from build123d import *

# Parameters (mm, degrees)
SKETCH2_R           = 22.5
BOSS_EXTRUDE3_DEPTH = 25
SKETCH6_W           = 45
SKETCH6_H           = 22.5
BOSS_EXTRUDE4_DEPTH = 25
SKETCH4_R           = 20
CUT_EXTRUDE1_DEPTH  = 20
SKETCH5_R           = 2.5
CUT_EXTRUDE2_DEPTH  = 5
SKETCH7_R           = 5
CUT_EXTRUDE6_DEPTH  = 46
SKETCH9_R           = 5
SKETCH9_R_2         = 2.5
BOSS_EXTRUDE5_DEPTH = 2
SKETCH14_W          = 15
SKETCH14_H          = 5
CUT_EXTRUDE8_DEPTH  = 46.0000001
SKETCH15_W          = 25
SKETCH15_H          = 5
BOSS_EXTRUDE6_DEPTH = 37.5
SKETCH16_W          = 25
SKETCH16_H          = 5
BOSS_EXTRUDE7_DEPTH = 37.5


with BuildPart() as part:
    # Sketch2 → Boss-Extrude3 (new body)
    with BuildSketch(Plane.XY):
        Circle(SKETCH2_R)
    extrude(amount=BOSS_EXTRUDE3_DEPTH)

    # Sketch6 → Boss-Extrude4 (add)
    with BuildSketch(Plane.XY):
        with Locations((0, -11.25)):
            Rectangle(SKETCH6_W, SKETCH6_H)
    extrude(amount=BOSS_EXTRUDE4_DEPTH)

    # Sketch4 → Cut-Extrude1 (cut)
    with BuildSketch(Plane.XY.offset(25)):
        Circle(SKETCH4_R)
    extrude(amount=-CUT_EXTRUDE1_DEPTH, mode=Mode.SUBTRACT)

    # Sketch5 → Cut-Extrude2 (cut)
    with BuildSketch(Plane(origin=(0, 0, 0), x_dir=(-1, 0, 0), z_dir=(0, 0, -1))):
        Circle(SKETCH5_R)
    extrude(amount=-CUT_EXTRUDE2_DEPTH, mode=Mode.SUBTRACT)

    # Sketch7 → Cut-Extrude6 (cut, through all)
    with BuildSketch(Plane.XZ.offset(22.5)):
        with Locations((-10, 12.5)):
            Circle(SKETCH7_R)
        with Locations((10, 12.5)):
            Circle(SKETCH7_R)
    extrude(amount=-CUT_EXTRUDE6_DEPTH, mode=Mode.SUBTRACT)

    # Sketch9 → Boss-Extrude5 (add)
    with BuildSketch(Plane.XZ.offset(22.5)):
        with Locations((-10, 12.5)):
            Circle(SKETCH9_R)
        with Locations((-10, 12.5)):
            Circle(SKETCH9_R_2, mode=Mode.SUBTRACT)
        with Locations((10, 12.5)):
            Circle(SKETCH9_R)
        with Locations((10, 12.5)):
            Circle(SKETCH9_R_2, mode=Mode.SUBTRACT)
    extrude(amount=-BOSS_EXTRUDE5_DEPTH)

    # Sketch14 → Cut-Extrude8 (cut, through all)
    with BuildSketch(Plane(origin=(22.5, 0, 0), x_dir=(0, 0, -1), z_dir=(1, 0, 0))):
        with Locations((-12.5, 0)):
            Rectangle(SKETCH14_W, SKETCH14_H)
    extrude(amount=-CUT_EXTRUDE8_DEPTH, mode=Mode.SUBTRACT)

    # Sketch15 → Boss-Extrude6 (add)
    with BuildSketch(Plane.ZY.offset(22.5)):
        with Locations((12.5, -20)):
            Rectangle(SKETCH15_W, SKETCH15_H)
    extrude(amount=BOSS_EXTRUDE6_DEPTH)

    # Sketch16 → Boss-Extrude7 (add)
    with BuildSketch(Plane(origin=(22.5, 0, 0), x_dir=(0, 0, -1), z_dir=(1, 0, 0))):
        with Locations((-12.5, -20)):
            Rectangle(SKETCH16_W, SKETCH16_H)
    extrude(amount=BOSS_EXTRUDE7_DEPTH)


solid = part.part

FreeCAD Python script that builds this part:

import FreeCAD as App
import Part
import Sketcher
from FreeCAD import Vector
Q = App.Units.Quantity

doc = App.newDocument("Part")
body = doc.addObject("PartDesign::Body", "Body")

# Sketch on XY plane
sketch1 = body.newObject("Sketcher::SketchObject", "Sketch")
sketch1.AttachmentSupport = (doc.getObject("XY_Plane"), [""])
sketch1.MapMode = "FlatFace"
sketch1.addGeometry(Part.Circle(Vector(0, 0, 0), Vector(0, 0, 1), 22), False)
sketch1.addConstraint(Sketcher.Constraint("Coincident", 0, 3, -1, 1))
sketch1.addConstraint(Sketcher.Constraint("Diameter", 0, Q("45 mm")))
pad1 = body.newObject("PartDesign::Pad", "Pad")
pad1.Profile = sketch1
pad1.Length = 25

# Sketch on XY plane
sketch2 = body.newObject("Sketcher::SketchObject", "Sketch001")
sketch2.AttachmentSupport = (doc.getObject("XY_Plane"), [""])
sketch2.MapMode = "FlatFace"
sketch2.addGeometry(Part.LineSegment(Vector(-22, 0, 0), Vector(-22, -22, 0)), False)
sketch2.addGeometry(Part.LineSegment(Vector(-22, -22, 0), Vector(22, -22, 0)), False)
sketch2.addGeometry(Part.LineSegment(Vector(22, -22, 0), Vector(22, 0, 0)), False)
sketch2.addGeometry(Part.LineSegment(Vector(22, 0, 0), Vector(-22, 0, 0)), False)
sketch2.addConstraint(Sketcher.Constraint("Coincident", 0, 2, 1, 1))
sketch2.addConstraint(Sketcher.Constraint("Coincident", 1, 2, 2, 1))
sketch2.addConstraint(Sketcher.Constraint("Coincident", 2, 2, 3, 1))
sketch2.addConstraint(Sketcher.Constraint("Coincident", 3, 2, 0, 1))
sketch2.addConstraint(Sketcher.Constraint("Vertical", 0))
sketch2.addConstraint(Sketcher.Constraint("Horizontal", 1))
sketch2.addConstraint(Sketcher.Constraint("Vertical", 2))
sketch2.addConstraint(Sketcher.Constraint("Horizontal", 3))
sketch2.addConstraint(Sketcher.Constraint("Symmetric", 2, 2, 3, 2, -1, 1))
sketch2.addConstraint(Sketcher.Constraint("DistanceX", 1, 1, 1, 2, Q("45 mm")))
sketch2.addConstraint(Sketcher.Constraint("DistanceY", 0, 2, 0, 1, Q("22.5 mm")))
pad2 = body.newObject("PartDesign::Pad", "Pad001")
pad2.Profile = sketch2
pad2.Length = 25

# Sketch on XY plane
sketch3 = body.newObject("Sketcher::SketchObject", "Sketch002")
sketch3.AttachmentSupport = (doc.getObject("XY_Plane"), [""])
sketch3.MapMode = "FlatFace"
sketch3.AttachmentOffset = App.Placement(Vector(0, 0, 25), App.Rotation())
sketch3.addGeometry(Part.Circle(Vector(0, 0, 0), Vector(0, 0, 1), 20), False)
sketch3.addConstraint(Sketcher.Constraint("Coincident", 0, 3, -1, 1))
sketch3.addConstraint(Sketcher.Constraint("Diameter", 0, Q("40 mm")))
pocket1 = body.newObject("PartDesign::Pocket", "Pocket")
pocket1.Profile = sketch3
pocket1.Length = 20

# Sketch on XY plane
sketch4 = body.newObject("Sketcher::SketchObject", "Sketch003")
sketch4.AttachmentSupport = (doc.getObject("XY_Plane"), [""])
sketch4.MapMode = "FlatFace"
sketch4.addGeometry(Part.Circle(Vector(0, 0, 0), Vector(0, 0, 1), 2.5), False)
sketch4.addConstraint(Sketcher.Constraint("Coincident", 0, 3, -1, 1))
sketch4.addConstraint(Sketcher.Constraint("Diameter", 0, Q("5 mm")))
pocket2 = body.newObject("PartDesign::Pocket", "Pocket001")
pocket2.Profile = sketch4
pocket2.Length = 5
pocket2.Reversed = True

# Sketch on XZ plane
sketch5 = body.newObject("Sketcher::SketchObject", "Sketch004")
sketch5.AttachmentSupport = (doc.getObject("XZ_Plane"), [""])
sketch5.MapMode = "FlatFace"
sketch5.AttachmentOffset = App.Placement(Vector(0, 0, 22.5), App.Rotation())
sketch5.addGeometry(Part.Circle(Vector(-10, 12, 0), Vector(0, 0, 1), 5), False)
sketch5.addGeometry(Part.Circle(Vector(10, 12, 0), Vector(0, 0, 1), 5), False)
sketch5.addConstraint(Sketcher.Constraint("Equal", 0, 1))
sketch5.addConstraint(Sketcher.Constraint("Symmetric", 0, 3, 1, 3, -2))
sketch5.addConstraint(Sketcher.Constraint("Diameter", 0, Q("10 mm")))
sketch5.addConstraint(Sketcher.Constraint("DistanceX", 0, 3, -1, 1, Q("10 mm")))
sketch5.addConstraint(Sketcher.Constraint("DistanceY", -1, 1, 0, 3, Q("12.5 mm")))
pocket3 = body.newObject("PartDesign::Pocket", "Pocket002")
pocket3.Profile = sketch5
pocket3.Type = "ThroughAll"

# Sketch on XZ plane
sketch6 = body.newObject("Sketcher::SketchObject", "Sketch005")
sketch6.AttachmentSupport = (doc.getObject("XZ_Plane"), [""])
sketch6.MapMode = "FlatFace"
sketch6.AttachmentOffset = App.Placement(Vector(0, 0, 22.5), App.Rotation())
sketch6.addGeometry(Part.Circle(Vector(-10, 12.5, 0), Vector(0, 0, 1), 5), False)
sketch6.addGeometry(Part.Circle(Vector(-10, 12.5, 0), Vector(0, 0, 1), 2.5), False)
sketch6.addGeometry(Part.Circle(Vector(10, 12.5, 0), Vector(0, 0, 1), 5), False)
sketch6.addGeometry(Part.Circle(Vector(10, 12.5, 0), Vector(0, 0, 1), 2.5), False)
sketch6.addConstraint(Sketcher.Constraint("Coincident", 1, 3, 0, 3))
sketch6.addConstraint(Sketcher.Constraint("Coincident", 3, 3, 2, 3))
sketch6.addConstraint(Sketcher.Constraint("Equal", 0, 2))
sketch6.addConstraint(Sketcher.Constraint("Equal", 1, 3))
sketch6.addConstraint(Sketcher.Constraint("Symmetric", 0, 3, 2, 3, -2))
sketch6.addConstraint(Sketcher.Constraint("Diameter", 0, Q("10 mm")))
sketch6.addConstraint(Sketcher.Constraint("Diameter", 1, Q("5 mm")))
sketch6.addConstraint(Sketcher.Constraint("DistanceX", 0, 3, -1, 1, Q("10 mm")))
sketch6.addConstraint(Sketcher.Constraint("DistanceY", -1, 1, 0, 3, Q("12.5 mm")))
pad3 = body.newObject("PartDesign::Pad", "Pad002")
pad3.Profile = sketch6
pad3.Length = 2
pad3.Reversed = True

# Sketch on YZ plane
sketch7 = body.newObject("Sketcher::SketchObject", "Sketch006")
sketch7.AttachmentSupport = (doc.getObject("YZ_Plane"), [""])
sketch7.MapMode = "FlatFace"
sketch7.AttachmentOffset = App.Placement(Vector(0, 0, 22.5), App.Rotation())
sketch7.addGeometry(Part.LineSegment(Vector(2, 20, 0), Vector(-2, 20, 0)), False)
sketch7.addGeometry(Part.LineSegment(Vector(-2, 20, 0), Vector(-2, 5, 0)), False)
sketch7.addGeometry(Part.LineSegment(Vector(-2, 5, 0), Vector(2, 5, 0)), False)
sketch7.addGeometry(Part.LineSegment(Vector(2, 5, 0), Vector(2, 20, 0)), False)
sketch7.addConstraint(Sketcher.Constraint("Coincident", 0, 2, 1, 1))
sketch7.addConstraint(Sketcher.Constraint("Coincident", 1, 2, 2, 1))
sketch7.addConstraint(Sketcher.Constraint("Coincident", 2, 2, 3, 1))
sketch7.addConstraint(Sketcher.Constraint("Coincident", 3, 2, 0, 1))
sketch7.addConstraint(Sketcher.Constraint("Horizontal", 0))
sketch7.addConstraint(Sketcher.Constraint("Vertical", 1))
sketch7.addConstraint(Sketcher.Constraint("Horizontal", 2))
sketch7.addConstraint(Sketcher.Constraint("Vertical", 3))
sketch7.addConstraint(Sketcher.Constraint("DistanceX", 0, 2, 0, 1, Q("5 mm")))
sketch7.addConstraint(Sketcher.Constraint("DistanceY", 1, 2, 1, 1, Q("15 mm")))
sketch7.addConstraint(Sketcher.Constraint("DistanceY", -1, 1, 0, 2, Q("20 mm")))
sketch7.addConstraint(Sketcher.Constraint("DistanceX", 0, 2, -1, 1, Q("2.5 mm")))
pocket4 = body.newObject("PartDesign::Pocket", "Pocket003")
pocket4.Profile = sketch7
pocket4.Type = "ThroughAll"

# Sketch on YZ plane
sketch8 = body.newObject("Sketcher::SketchObject", "Sketch007")
sketch8.AttachmentSupport = (doc.getObject("YZ_Plane"), [""])
sketch8.MapMode = "FlatFace"
sketch8.AttachmentOffset = App.Placement(Vector(0, 0, -22.5), App.Rotation())
sketch8.addGeometry(Part.LineSegment(Vector(-18, 0, 0), Vector(-22, 0, 0)), False)
sketch8.addGeometry(Part.LineSegment(Vector(-22, 0, 0), Vector(-22, 25, 0)), False)
sketch8.addGeometry(Part.LineSegment(Vector(-22, 25, 0), Vector(-18, 25, 0)), False)
sketch8.addGeometry(Part.LineSegment(Vector(-18, 25, 0), Vector(-18, 0, 0)), False)
sketch8.addConstraint(Sketcher.Constraint("Coincident", 0, 2, 1, 1))
sketch8.addConstraint(Sketcher.Constraint("Coincident", 1, 2, 2, 1))
sketch8.addConstraint(Sketcher.Constraint("Coincident", 2, 2, 3, 1))
sketch8.addConstraint(Sketcher.Constraint("Coincident", 3, 2, 0, 1))
sketch8.addConstraint(Sketcher.Constraint("Horizontal", 0))
sketch8.addConstraint(Sketcher.Constraint("Vertical", 1))
sketch8.addConstraint(Sketcher.Constraint("Horizontal", 2))
sketch8.addConstraint(Sketcher.Constraint("Vertical", 3))
sketch8.addConstraint(Sketcher.Constraint("PointOnObject", 0, 2, -1))
sketch8.addConstraint(Sketcher.Constraint("DistanceX", 0, 2, 0, 1, Q("5 mm")))
sketch8.addConstraint(Sketcher.Constraint("DistanceY", 1, 1, 1, 2, Q("25 mm")))
sketch8.addConstraint(Sketcher.Constraint("DistanceX", 0, 2, -1, 1, Q("22.5 mm")))
pad4 = body.newObject("PartDesign::Pad", "Pad003")
pad4.Profile = sketch8
pad4.Length = 37.5
pad4.Reversed = True

# Sketch on YZ plane
sketch9 = body.newObject("Sketcher::SketchObject", "Sketch008")
sketch9.AttachmentSupport = (doc.getObject("YZ_Plane"), [""])
sketch9.MapMode = "FlatFace"
sketch9.AttachmentOffset = App.Placement(Vector(0, 0, 22.5), App.Rotation())
sketch9.addGeometry(Part.LineSegment(Vector(-18, 25, 0), Vector(-22, 25, 0)), False)
sketch9.addGeometry(Part.LineSegment(Vector(-22, 25, 0), Vector(-22, 0, 0)), False)
sketch9.addGeometry(Part.LineSegment(Vector(-22, 0, 0), Vector(-18, 0, 0)), False)
sketch9.addGeometry(Part.LineSegment(Vector(-18, 0, 0), Vector(-18, 25, 0)), False)
sketch9.addConstraint(Sketcher.Constraint("Coincident", 0, 2, 1, 1))
sketch9.addConstraint(Sketcher.Constraint("Coincident", 1, 2, 2, 1))
sketch9.addConstraint(Sketcher.Constraint("Coincident", 2, 2, 3, 1))
sketch9.addConstraint(Sketcher.Constraint("Coincident", 3, 2, 0, 1))
sketch9.addConstraint(Sketcher.Constraint("Horizontal", 0))
sketch9.addConstraint(Sketcher.Constraint("Vertical", 1))
sketch9.addConstraint(Sketcher.Constraint("Horizontal", 2))
sketch9.addConstraint(Sketcher.Constraint("Vertical", 3))
sketch9.addConstraint(Sketcher.Constraint("PointOnObject", 1, 2, -1))
sketch9.addConstraint(Sketcher.Constraint("DistanceX", 0, 2, 0, 1, Q("5 mm")))
sketch9.addConstraint(Sketcher.Constraint("DistanceY", 1, 2, 1, 1, Q("25 mm")))
sketch9.addConstraint(Sketcher.Constraint("DistanceX", 0, 2, -1, 1, Q("22.5 mm")))
pad5 = body.newObject("PartDesign::Pad", "Pad004")
pad5.Profile = sketch9
pad5.Length = 37.5

doc.recompute()
